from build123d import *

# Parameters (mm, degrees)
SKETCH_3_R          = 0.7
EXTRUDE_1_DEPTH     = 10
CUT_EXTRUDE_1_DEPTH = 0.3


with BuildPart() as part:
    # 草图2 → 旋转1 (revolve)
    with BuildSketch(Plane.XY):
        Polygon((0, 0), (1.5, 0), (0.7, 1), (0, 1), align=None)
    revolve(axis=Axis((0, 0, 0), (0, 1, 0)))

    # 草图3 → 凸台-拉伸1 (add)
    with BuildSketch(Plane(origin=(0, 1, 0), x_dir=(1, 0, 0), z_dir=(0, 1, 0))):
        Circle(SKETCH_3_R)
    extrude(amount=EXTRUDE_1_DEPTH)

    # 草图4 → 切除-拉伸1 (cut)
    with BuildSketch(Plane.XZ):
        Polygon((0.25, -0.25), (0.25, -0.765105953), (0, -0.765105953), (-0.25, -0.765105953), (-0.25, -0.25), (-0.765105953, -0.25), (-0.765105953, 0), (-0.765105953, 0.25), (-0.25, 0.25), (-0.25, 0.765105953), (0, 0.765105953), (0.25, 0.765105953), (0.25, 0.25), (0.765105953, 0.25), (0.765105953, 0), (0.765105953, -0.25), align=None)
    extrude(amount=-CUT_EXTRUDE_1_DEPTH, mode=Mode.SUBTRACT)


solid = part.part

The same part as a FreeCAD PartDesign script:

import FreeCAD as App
import Part
import Sketcher

V = App.Vector
Q = App.Units.Quantity


def add_polygon(sketch, points):
    """Adds a closed chain of lines whose ends are joined by coincident constraints."""
    first, n = sketch.GeometryCount, len(points)
    for a, b in zip(points, points[1:] + points[:1]):
        sketch.addGeometry(Part.LineSegment(App.Vector(*a, 0), App.Vector(*b, 0)), False)
    for i in range(n):
        sketch.addConstraint(Sketcher.Constraint("Coincident", first + i, 2, first + (i + 1) % n, 1))

doc = App.newDocument("Part")
body = doc.addObject("PartDesign::Body", "Body")

# Sketch on XY plane
sketch1 = doc.addObject("Sketcher::SketchObject", "Sketch")
body.addObject(sketch1)
sketch1.AttachmentSupport = (doc.XY_Plane, [""])
sketch1.MapMode = "FlatFace"
add_polygon(sketch1, [(0, 0), (1.5, 0), (0.7, 1), (0, 1)])  # lines 0-3
sketch1.addConstraint(Sketcher.Constraint("Horizontal", 0))
sketch1.addConstraint(Sketcher.Constraint("Horizontal", 2))
sketch1.addConstraint(Sketcher.Constraint("Vertical", 3))
sketch1.addConstraint(Sketcher.Constraint("Coincident", 3, 2, -1, 1))
sketch1.addConstraint(Sketcher.Constraint("DistanceY", 3, 2, 3, 1, Q("1 mm")))
sketch1.addConstraint(Sketcher.Constraint("DistanceX", 0, 1, 0, 2, Q("1.5 mm")))
sketch1.addConstraint(Sketcher.Constraint("DistanceX", 2, 2, 2, 1, Q("0.7 mm")))
revolution = doc.addObject("PartDesign::Revolution", "Revolution")
body.addObject(revolution)
revolution.Profile = sketch1
revolution.ReferenceAxis = (sketch1, ["V_Axis"])
revolution.Angle = 360

# Sketch on XZ plane
sketch2 = doc.addObject("Sketcher::SketchObject", "Sketch001")
body.addObject(sketch2)
sketch2.AttachmentSupport = (doc.XZ_Plane, [""])
sketch2.MapMode = "FlatFace"
sketch2.AttachmentOffset = App.Placement(V(0, 0, -1), App.Rotation())
sketch2.addGeometry(Part.Circle(V(0, 0, 0), V(0, 0, 1), 0.7), False)
sketch2.addConstraint(Sketcher.Constraint("Coincident", 0, 3, -1, 1))
sketch2.addConstraint(Sketcher.Constraint("Diameter", 0, Q("1.4 mm")))
pad1 = doc.addObject("PartDesign::Pad", "Pad")
body.addObject(pad1)
pad1.Profile = sketch2
pad1.Length = 10
pad1.Reversed = True

# Sketch on XZ plane
sketch3 = doc.addObject("Sketcher::SketchObject", "Sketch002")
body.addObject(sketch3)
sketch3.AttachmentSupport = (doc.XZ_Plane, [""])
sketch3.MapMode = "FlatFace"
add_polygon(sketch3, [(0.25, -0.765106), (0.25, -0.25), (0.765106, -0.25), (0.765106, 0.25), (0.25, 0.25), (0.25, 0.765106), (-0.25, 0.765106), (-0.25, 0.25), (-0.765106, 0.25), (-0.765106, -0.25), (-0.25, -0.25), (-0.25, -0.765106)])  # lines 0-11
sketch3.addConstraint(Sketcher.Constraint("Vertical", 0))
sketch3.addConstraint(Sketcher.Constraint("Horizontal", 1))
sketch3.addConstraint(Sketcher.Constraint("Vertical", 2))
sketch3.addConstraint(Sketcher.Constraint("Horizontal", 3))
sketch3.addConstraint(Sketcher.Constraint("Vertical", 4))
sketch3.addConstraint(Sketcher.Constraint("Horizontal", 5))
sketch3.addConstraint(Sketcher.Constraint("Vertical", 6))
sketch3.addConstraint(Sketcher.Constraint("Horizontal", 7))
sketch3.addConstraint(Sketcher.Constraint("Vertical", 8))
sketch3.addConstraint(Sketcher.Constraint("Horizontal", 9))
sketch3.addConstraint(Sketcher.Constraint("Vertical", 10))
sketch3.addConstraint(Sketcher.Constraint("Horizontal", 11))
sketch3.addConstraint(Sketcher.Constraint("Symmetric", 0, 2, 6, 2, -1, 1))
sketch3.addConstraint(Sketcher.Constraint("Symmetric", 2, 2, 8, 2, -1, 1))
sketch3.addConstraint(Sketcher.Constraint("Symmetric", 4, 2, 10, 2, -1, 1))
sketch3.addConstraint(Sketcher.Constraint("Symmetric", 3, 2, 6, 2, -2))
sketch3.addConstraint(Sketcher.Constraint("Equal", 9, 0))
sketch3.addConstraint(Sketcher.Constraint("Equal", 11, 2))
sketch3.addConstraint(Sketcher.Constraint("DistanceX", 5, 2, 5, 1, Q("0.5 mm")))
sketch3.addConstraint(Sketcher.Constraint("DistanceX", 1, 1, 1, 2, Q("0.515106 mm")))
pocket1 = doc.addObject("PartDesign::Pocket", "Pocket")
body.addObject(pocket1)
pocket1.Profile = sketch3
pocket1.Length = 0.3

doc.recompute()
